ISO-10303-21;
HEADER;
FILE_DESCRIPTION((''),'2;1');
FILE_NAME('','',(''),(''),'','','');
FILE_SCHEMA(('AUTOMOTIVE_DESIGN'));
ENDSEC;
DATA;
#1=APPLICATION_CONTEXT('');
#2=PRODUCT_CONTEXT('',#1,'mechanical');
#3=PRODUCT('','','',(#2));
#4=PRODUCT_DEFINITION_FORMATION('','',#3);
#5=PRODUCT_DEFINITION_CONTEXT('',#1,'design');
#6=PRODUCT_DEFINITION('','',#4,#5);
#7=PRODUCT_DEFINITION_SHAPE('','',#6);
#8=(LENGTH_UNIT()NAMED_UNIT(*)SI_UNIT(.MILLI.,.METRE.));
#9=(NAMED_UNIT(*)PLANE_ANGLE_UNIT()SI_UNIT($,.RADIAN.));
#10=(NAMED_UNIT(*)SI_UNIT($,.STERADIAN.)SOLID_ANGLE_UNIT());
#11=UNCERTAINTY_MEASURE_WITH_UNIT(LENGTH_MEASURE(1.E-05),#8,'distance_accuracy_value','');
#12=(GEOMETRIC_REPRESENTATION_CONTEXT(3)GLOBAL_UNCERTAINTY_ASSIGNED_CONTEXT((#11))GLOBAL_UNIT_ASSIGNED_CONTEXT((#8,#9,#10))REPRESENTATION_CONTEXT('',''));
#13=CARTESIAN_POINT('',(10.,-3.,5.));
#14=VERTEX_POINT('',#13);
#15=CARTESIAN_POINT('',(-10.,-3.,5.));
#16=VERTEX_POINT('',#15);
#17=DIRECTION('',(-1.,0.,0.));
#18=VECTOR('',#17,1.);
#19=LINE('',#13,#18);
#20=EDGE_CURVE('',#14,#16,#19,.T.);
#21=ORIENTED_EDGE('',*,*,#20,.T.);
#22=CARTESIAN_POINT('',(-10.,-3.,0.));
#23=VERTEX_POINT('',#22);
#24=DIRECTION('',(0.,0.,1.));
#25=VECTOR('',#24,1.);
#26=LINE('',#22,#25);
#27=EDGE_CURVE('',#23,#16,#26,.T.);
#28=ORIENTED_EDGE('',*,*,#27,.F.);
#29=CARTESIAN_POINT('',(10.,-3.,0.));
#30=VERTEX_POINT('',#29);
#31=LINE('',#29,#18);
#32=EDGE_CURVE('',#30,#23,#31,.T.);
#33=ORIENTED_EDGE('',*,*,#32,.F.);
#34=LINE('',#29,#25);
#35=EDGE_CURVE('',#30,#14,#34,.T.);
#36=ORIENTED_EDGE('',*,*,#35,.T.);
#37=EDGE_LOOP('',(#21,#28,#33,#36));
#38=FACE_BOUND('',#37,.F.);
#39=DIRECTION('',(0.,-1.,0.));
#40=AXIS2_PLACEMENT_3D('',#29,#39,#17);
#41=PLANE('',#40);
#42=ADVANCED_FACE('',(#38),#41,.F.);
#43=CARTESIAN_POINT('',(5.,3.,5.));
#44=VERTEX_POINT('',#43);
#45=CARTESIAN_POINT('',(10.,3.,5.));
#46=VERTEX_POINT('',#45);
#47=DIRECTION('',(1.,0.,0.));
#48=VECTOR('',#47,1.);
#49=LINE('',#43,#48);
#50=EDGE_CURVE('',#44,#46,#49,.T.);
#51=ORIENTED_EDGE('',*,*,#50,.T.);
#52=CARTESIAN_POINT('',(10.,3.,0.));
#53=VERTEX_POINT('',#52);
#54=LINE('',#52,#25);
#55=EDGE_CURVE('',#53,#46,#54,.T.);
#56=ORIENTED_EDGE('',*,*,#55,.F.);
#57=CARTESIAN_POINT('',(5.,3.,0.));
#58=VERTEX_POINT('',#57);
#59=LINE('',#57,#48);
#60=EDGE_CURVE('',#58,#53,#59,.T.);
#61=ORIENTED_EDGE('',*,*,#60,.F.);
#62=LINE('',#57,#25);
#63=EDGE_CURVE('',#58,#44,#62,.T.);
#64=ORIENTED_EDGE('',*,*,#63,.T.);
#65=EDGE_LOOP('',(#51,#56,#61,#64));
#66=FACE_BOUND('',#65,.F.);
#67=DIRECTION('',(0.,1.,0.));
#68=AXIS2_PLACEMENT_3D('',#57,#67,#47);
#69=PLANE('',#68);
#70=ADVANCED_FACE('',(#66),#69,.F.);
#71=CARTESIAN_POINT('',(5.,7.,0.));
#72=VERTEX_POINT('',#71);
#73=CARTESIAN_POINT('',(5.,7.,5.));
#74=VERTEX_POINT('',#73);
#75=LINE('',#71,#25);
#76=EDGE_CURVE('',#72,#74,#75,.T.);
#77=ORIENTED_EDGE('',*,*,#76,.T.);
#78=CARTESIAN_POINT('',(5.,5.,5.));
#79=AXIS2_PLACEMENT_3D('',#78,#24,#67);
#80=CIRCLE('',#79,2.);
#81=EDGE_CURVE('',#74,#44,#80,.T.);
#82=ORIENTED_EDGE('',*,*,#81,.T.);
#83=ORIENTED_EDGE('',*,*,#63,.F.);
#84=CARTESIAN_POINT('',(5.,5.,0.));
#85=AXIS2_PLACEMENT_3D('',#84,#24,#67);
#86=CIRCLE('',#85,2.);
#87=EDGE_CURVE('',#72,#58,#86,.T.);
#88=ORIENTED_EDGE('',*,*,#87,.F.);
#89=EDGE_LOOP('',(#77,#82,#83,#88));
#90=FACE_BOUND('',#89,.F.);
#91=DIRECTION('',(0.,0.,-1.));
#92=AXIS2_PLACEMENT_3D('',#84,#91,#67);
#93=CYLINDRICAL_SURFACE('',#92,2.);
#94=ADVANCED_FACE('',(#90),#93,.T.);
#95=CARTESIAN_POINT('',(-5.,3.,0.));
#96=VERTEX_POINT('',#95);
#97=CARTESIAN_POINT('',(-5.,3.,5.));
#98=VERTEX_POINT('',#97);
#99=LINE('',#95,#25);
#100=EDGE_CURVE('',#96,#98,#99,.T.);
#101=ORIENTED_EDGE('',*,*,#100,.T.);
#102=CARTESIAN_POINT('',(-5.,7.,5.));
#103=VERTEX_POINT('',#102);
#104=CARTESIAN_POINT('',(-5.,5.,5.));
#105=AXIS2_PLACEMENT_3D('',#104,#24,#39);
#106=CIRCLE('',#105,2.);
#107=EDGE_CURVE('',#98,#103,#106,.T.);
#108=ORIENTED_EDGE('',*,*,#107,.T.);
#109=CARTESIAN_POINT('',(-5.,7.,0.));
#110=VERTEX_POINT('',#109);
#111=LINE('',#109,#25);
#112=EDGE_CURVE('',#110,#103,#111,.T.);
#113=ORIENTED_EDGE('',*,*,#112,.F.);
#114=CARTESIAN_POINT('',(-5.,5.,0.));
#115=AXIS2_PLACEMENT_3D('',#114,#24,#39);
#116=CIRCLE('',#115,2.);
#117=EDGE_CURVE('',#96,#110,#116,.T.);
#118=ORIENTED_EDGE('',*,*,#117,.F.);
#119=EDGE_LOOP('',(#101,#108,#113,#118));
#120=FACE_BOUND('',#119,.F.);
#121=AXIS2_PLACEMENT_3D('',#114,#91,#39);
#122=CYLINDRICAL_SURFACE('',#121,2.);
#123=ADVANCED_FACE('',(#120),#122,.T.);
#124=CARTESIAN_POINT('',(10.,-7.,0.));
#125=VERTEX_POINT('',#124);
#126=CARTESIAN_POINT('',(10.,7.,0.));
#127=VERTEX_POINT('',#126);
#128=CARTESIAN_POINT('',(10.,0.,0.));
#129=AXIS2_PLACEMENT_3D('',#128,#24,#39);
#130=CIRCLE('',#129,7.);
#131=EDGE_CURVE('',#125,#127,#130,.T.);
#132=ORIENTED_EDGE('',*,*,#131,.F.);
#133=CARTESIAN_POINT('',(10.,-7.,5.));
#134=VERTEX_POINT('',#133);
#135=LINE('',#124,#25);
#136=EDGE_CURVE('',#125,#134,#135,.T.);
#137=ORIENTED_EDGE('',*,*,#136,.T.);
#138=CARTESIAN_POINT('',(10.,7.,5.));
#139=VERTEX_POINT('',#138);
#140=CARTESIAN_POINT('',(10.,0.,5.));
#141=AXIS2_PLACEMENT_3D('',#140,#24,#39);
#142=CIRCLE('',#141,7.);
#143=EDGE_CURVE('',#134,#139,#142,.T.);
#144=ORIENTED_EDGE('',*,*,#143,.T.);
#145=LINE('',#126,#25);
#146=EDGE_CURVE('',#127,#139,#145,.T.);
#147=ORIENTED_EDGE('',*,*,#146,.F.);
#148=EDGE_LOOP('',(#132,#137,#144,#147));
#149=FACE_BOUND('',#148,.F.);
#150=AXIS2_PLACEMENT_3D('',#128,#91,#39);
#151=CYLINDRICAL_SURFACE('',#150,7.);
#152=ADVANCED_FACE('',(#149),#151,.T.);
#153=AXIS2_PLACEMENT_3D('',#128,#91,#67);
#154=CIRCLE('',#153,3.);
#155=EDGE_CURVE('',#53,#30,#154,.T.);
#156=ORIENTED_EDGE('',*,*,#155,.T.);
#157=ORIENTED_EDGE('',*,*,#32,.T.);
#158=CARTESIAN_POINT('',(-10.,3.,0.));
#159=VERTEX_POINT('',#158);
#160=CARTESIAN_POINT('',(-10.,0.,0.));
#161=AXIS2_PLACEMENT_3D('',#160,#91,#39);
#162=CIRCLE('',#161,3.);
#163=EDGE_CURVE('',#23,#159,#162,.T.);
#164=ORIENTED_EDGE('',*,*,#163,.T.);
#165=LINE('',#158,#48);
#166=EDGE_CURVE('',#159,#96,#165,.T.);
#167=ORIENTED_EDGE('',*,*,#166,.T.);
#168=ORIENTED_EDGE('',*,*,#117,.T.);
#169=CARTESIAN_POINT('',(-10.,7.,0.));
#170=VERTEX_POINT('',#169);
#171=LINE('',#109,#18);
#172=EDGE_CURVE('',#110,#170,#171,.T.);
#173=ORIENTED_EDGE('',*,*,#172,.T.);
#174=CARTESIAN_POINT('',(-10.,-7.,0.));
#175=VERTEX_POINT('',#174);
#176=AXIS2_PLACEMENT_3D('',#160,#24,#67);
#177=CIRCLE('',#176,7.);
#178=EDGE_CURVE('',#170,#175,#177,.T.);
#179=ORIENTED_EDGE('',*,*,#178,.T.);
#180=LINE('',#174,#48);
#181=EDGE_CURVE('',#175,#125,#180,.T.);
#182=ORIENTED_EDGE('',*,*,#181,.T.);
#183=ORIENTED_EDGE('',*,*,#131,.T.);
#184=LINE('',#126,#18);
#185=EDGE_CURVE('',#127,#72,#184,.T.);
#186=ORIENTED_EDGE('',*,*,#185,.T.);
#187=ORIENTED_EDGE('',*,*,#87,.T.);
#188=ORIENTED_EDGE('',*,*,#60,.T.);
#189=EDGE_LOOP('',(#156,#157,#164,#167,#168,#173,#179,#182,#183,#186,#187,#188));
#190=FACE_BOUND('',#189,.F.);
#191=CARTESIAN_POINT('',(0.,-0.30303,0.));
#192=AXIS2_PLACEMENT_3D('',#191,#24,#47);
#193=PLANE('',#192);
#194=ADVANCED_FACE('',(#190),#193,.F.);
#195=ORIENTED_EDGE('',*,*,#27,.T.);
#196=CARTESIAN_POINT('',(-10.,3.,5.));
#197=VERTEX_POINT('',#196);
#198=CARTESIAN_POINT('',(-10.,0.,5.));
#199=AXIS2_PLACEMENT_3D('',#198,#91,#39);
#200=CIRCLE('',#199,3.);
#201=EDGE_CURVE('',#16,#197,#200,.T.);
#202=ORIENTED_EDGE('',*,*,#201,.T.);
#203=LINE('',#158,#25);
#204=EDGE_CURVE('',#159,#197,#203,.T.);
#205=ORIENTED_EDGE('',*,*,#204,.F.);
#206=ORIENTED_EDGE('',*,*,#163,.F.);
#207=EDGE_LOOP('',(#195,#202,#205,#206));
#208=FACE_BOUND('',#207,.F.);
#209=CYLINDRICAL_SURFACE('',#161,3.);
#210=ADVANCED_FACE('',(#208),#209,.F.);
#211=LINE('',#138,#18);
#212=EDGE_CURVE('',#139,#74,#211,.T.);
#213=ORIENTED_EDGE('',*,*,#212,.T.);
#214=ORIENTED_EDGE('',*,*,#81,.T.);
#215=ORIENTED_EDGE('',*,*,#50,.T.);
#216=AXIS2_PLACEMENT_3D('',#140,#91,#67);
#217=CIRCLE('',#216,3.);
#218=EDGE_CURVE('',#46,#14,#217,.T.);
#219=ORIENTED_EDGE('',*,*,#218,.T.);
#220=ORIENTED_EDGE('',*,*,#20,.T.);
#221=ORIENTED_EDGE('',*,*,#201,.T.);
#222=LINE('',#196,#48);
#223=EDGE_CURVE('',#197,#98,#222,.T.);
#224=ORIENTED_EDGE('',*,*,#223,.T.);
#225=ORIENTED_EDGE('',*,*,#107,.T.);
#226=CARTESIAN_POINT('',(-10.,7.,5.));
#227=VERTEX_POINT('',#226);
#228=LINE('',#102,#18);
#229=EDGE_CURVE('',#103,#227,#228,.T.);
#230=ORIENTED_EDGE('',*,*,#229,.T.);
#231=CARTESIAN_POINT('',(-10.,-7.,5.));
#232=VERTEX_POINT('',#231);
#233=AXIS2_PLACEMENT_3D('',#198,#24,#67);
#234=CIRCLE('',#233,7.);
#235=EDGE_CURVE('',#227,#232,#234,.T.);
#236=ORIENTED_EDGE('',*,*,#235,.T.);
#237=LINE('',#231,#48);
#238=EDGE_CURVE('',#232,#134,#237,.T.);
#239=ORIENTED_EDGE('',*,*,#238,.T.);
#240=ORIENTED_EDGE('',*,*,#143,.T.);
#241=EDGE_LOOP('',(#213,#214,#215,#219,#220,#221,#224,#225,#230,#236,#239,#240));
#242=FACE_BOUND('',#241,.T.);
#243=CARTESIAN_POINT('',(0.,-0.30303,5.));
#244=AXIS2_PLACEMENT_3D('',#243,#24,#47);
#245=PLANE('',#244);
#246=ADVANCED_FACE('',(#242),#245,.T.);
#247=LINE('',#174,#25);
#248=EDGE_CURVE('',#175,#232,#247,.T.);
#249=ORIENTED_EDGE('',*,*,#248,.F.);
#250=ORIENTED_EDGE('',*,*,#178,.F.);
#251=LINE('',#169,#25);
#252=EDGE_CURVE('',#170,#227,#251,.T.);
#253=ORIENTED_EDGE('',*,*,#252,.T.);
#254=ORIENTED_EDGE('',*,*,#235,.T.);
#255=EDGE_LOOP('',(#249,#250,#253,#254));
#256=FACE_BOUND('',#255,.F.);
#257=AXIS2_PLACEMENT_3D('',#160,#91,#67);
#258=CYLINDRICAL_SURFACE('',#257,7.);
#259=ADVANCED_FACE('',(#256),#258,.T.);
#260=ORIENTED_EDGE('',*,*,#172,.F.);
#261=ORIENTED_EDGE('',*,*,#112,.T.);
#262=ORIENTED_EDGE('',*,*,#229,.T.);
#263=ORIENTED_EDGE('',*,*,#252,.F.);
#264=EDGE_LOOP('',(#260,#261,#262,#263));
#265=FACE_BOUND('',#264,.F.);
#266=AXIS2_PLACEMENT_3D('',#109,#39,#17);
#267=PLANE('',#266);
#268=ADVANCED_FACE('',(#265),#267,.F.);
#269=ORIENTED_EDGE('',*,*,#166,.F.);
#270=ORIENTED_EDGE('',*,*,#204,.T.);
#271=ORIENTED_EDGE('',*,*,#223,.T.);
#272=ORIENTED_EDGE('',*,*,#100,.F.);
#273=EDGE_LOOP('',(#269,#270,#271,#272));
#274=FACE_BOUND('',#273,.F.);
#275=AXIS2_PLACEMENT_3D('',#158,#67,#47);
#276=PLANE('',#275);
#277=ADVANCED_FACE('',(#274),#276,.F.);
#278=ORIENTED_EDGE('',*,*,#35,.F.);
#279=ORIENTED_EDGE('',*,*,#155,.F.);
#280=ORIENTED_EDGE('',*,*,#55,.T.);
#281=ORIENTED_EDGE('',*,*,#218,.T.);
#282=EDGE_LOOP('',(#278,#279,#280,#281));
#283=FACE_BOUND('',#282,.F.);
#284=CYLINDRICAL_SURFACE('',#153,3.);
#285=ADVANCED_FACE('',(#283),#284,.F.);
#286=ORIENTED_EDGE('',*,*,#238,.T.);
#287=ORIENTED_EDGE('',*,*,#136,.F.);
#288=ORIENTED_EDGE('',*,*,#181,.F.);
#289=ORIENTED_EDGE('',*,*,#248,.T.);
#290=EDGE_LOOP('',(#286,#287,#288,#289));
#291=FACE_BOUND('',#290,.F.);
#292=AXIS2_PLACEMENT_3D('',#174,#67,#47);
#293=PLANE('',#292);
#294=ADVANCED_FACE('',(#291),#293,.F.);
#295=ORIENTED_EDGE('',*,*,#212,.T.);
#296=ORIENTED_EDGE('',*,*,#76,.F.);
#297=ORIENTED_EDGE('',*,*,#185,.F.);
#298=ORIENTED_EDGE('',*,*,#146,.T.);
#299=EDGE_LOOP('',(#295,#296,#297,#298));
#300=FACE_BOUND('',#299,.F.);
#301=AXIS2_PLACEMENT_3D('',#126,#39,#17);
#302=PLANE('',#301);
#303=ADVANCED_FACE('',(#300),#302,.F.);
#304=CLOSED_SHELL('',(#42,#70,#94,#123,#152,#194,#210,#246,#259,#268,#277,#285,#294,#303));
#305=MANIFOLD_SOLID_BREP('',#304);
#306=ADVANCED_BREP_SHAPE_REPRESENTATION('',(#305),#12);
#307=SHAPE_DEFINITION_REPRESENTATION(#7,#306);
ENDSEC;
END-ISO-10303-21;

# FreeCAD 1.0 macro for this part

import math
import FreeCAD as App
import Part
import Sketcher

V = App.Vector

doc = App.newDocument("Part")
params = doc.addObject("Spreadsheet::Sheet", "Params")
for row, (alias, value) in enumerate([
    ("sketch1_radius", "3 mm"),
    ("sketch1_radius2", "2 mm"),
    ("sketch1_width", "20 mm"),
    ("sketch1_width2", "5 mm"),
    ("pad1_length", "5 mm"),
], start=1):
    params.set(f"A{row}", alias)
    params.set(f"B{row}", "=" + value)
    params.setAlias(f"B{row}", alias)

body = doc.addObject("PartDesign::Body", "Body")

sketch1 = body.newObject("Sketcher::SketchObject", "Sketch")
sketch1.AttachmentSupport = (doc.getObject("XY_Plane"), [""])
sketch1.MapMode = "FlatFace"
sketch1.addGeometry([
    Part.LineSegment(V(10, -3, 0), V(-10, -3, 0)),
    Part.ArcOfCircle(Part.Circle(V(-10, 0, 0), V(0, 0, 1), 3), math.radians(90), math.radians(270)),
    Part.LineSegment(V(-10, 3, 0), V(-5, 3, 0)),
    Part.ArcOfCircle(Part.Circle(V(-5, 5, 0), V(0, 0, 1), 2), math.radians(-90), math.radians(90)),
    Part.LineSegment(V(-5, 7, 0), V(-10, 7, 0)),
    Part.ArcOfCircle(Part.Circle(V(-10, 0, 0), V(0, 0, 1), 7), math.radians(90), math.radians(270)),
    Part.LineSegment(V(-10, -7, 0), V(10, -7, 0)),
    Part.ArcOfCircle(Part.Circle(V(10, 0, 0), V(0, 0, 1), 7), math.radians(-90), math.radians(90)),
    Part.LineSegment(V(10, 7, 0), V(5, 7, 0)),
    Part.ArcOfCircle(Part.Circle(V(5, 5, 0), V(0, 0, 1), 2), math.radians(90), math.radians(270)),
    Part.LineSegment(V(5, 3, 0), V(10, 3, 0)),
    Part.ArcOfCircle(Part.Circle(V(10, 0, 0), V(0, 0, 1), 3), math.radians(-90), math.radians(90)),
], False)
sketch1.addConstraint([
    Sketcher.Constraint("Tangent", 0, 2, 1, 2),
    Sketcher.Constraint("Tangent", 1, 1, 2, 1),
    Sketcher.Constraint("Tangent", 2, 2, 3, 1),
    Sketcher.Constraint("Tangent", 3, 2, 4, 1),
    Sketcher.Constraint("Tangent", 4, 2, 5, 1),
    Sketcher.Constraint("Tangent", 5, 2, 6, 1),
    Sketcher.Constraint("Tangent", 6, 2, 7, 1),
    Sketcher.Constraint("Tangent", 7, 2, 8, 1),
    Sketcher.Constraint("Tangent", 8, 2, 9, 1),
    Sketcher.Constraint("Tangent", 9, 2, 10, 1),
    Sketcher.Constraint("Tangent", 10, 2, 11, 2),
    Sketcher.Constraint("Tangent", 11, 1, 0, 1),
    Sketcher.Constraint("Horizontal", 0),
    Sketcher.Constraint("Horizontal", 2),
    Sketcher.Constraint("Horizontal", 4),
    Sketcher.Constraint("Horizontal", 6),
    Sketcher.Constraint("Horizontal", 8),
    Sketcher.Constraint("Horizontal", 10),
    Sketcher.Constraint("Coincident", 5, 3, 1, 3),
    Sketcher.Constraint("Coincident", 11, 3, 7, 3),
    Sketcher.Constraint("Equal", 5, 7),
    Sketcher.Constraint("Symmetric", 1, 3, 7, 3, -1, 1),
    Sketcher.Constraint("Equal", 4, 8),
    Sketcher.Constraint("Radius", 1, 3.0),
    Sketcher.Constraint("Radius", 3, 2.0),
    Sketcher.Constraint("DistanceX", 0, 2, 0, 1, 20.0),
    Sketcher.Constraint("DistanceX", 2, 1, 2, 2, 5.0),
])
sketch1.setExpression("Constraints[23]", "Params.sketch1_radius")
sketch1.setExpression("Constraints[24]", "Params.sketch1_radius2")
sketch1.setExpression("Constraints[25]", "Params.sketch1_width")
sketch1.setExpression("Constraints[26]", "Params.sketch1_width2")
pad1 = body.newObject("PartDesign::Pad", "Pad")
pad1.Profile = sketch1
pad1.setExpression("Length", "Params.pad1_length")

doc.recompute()
